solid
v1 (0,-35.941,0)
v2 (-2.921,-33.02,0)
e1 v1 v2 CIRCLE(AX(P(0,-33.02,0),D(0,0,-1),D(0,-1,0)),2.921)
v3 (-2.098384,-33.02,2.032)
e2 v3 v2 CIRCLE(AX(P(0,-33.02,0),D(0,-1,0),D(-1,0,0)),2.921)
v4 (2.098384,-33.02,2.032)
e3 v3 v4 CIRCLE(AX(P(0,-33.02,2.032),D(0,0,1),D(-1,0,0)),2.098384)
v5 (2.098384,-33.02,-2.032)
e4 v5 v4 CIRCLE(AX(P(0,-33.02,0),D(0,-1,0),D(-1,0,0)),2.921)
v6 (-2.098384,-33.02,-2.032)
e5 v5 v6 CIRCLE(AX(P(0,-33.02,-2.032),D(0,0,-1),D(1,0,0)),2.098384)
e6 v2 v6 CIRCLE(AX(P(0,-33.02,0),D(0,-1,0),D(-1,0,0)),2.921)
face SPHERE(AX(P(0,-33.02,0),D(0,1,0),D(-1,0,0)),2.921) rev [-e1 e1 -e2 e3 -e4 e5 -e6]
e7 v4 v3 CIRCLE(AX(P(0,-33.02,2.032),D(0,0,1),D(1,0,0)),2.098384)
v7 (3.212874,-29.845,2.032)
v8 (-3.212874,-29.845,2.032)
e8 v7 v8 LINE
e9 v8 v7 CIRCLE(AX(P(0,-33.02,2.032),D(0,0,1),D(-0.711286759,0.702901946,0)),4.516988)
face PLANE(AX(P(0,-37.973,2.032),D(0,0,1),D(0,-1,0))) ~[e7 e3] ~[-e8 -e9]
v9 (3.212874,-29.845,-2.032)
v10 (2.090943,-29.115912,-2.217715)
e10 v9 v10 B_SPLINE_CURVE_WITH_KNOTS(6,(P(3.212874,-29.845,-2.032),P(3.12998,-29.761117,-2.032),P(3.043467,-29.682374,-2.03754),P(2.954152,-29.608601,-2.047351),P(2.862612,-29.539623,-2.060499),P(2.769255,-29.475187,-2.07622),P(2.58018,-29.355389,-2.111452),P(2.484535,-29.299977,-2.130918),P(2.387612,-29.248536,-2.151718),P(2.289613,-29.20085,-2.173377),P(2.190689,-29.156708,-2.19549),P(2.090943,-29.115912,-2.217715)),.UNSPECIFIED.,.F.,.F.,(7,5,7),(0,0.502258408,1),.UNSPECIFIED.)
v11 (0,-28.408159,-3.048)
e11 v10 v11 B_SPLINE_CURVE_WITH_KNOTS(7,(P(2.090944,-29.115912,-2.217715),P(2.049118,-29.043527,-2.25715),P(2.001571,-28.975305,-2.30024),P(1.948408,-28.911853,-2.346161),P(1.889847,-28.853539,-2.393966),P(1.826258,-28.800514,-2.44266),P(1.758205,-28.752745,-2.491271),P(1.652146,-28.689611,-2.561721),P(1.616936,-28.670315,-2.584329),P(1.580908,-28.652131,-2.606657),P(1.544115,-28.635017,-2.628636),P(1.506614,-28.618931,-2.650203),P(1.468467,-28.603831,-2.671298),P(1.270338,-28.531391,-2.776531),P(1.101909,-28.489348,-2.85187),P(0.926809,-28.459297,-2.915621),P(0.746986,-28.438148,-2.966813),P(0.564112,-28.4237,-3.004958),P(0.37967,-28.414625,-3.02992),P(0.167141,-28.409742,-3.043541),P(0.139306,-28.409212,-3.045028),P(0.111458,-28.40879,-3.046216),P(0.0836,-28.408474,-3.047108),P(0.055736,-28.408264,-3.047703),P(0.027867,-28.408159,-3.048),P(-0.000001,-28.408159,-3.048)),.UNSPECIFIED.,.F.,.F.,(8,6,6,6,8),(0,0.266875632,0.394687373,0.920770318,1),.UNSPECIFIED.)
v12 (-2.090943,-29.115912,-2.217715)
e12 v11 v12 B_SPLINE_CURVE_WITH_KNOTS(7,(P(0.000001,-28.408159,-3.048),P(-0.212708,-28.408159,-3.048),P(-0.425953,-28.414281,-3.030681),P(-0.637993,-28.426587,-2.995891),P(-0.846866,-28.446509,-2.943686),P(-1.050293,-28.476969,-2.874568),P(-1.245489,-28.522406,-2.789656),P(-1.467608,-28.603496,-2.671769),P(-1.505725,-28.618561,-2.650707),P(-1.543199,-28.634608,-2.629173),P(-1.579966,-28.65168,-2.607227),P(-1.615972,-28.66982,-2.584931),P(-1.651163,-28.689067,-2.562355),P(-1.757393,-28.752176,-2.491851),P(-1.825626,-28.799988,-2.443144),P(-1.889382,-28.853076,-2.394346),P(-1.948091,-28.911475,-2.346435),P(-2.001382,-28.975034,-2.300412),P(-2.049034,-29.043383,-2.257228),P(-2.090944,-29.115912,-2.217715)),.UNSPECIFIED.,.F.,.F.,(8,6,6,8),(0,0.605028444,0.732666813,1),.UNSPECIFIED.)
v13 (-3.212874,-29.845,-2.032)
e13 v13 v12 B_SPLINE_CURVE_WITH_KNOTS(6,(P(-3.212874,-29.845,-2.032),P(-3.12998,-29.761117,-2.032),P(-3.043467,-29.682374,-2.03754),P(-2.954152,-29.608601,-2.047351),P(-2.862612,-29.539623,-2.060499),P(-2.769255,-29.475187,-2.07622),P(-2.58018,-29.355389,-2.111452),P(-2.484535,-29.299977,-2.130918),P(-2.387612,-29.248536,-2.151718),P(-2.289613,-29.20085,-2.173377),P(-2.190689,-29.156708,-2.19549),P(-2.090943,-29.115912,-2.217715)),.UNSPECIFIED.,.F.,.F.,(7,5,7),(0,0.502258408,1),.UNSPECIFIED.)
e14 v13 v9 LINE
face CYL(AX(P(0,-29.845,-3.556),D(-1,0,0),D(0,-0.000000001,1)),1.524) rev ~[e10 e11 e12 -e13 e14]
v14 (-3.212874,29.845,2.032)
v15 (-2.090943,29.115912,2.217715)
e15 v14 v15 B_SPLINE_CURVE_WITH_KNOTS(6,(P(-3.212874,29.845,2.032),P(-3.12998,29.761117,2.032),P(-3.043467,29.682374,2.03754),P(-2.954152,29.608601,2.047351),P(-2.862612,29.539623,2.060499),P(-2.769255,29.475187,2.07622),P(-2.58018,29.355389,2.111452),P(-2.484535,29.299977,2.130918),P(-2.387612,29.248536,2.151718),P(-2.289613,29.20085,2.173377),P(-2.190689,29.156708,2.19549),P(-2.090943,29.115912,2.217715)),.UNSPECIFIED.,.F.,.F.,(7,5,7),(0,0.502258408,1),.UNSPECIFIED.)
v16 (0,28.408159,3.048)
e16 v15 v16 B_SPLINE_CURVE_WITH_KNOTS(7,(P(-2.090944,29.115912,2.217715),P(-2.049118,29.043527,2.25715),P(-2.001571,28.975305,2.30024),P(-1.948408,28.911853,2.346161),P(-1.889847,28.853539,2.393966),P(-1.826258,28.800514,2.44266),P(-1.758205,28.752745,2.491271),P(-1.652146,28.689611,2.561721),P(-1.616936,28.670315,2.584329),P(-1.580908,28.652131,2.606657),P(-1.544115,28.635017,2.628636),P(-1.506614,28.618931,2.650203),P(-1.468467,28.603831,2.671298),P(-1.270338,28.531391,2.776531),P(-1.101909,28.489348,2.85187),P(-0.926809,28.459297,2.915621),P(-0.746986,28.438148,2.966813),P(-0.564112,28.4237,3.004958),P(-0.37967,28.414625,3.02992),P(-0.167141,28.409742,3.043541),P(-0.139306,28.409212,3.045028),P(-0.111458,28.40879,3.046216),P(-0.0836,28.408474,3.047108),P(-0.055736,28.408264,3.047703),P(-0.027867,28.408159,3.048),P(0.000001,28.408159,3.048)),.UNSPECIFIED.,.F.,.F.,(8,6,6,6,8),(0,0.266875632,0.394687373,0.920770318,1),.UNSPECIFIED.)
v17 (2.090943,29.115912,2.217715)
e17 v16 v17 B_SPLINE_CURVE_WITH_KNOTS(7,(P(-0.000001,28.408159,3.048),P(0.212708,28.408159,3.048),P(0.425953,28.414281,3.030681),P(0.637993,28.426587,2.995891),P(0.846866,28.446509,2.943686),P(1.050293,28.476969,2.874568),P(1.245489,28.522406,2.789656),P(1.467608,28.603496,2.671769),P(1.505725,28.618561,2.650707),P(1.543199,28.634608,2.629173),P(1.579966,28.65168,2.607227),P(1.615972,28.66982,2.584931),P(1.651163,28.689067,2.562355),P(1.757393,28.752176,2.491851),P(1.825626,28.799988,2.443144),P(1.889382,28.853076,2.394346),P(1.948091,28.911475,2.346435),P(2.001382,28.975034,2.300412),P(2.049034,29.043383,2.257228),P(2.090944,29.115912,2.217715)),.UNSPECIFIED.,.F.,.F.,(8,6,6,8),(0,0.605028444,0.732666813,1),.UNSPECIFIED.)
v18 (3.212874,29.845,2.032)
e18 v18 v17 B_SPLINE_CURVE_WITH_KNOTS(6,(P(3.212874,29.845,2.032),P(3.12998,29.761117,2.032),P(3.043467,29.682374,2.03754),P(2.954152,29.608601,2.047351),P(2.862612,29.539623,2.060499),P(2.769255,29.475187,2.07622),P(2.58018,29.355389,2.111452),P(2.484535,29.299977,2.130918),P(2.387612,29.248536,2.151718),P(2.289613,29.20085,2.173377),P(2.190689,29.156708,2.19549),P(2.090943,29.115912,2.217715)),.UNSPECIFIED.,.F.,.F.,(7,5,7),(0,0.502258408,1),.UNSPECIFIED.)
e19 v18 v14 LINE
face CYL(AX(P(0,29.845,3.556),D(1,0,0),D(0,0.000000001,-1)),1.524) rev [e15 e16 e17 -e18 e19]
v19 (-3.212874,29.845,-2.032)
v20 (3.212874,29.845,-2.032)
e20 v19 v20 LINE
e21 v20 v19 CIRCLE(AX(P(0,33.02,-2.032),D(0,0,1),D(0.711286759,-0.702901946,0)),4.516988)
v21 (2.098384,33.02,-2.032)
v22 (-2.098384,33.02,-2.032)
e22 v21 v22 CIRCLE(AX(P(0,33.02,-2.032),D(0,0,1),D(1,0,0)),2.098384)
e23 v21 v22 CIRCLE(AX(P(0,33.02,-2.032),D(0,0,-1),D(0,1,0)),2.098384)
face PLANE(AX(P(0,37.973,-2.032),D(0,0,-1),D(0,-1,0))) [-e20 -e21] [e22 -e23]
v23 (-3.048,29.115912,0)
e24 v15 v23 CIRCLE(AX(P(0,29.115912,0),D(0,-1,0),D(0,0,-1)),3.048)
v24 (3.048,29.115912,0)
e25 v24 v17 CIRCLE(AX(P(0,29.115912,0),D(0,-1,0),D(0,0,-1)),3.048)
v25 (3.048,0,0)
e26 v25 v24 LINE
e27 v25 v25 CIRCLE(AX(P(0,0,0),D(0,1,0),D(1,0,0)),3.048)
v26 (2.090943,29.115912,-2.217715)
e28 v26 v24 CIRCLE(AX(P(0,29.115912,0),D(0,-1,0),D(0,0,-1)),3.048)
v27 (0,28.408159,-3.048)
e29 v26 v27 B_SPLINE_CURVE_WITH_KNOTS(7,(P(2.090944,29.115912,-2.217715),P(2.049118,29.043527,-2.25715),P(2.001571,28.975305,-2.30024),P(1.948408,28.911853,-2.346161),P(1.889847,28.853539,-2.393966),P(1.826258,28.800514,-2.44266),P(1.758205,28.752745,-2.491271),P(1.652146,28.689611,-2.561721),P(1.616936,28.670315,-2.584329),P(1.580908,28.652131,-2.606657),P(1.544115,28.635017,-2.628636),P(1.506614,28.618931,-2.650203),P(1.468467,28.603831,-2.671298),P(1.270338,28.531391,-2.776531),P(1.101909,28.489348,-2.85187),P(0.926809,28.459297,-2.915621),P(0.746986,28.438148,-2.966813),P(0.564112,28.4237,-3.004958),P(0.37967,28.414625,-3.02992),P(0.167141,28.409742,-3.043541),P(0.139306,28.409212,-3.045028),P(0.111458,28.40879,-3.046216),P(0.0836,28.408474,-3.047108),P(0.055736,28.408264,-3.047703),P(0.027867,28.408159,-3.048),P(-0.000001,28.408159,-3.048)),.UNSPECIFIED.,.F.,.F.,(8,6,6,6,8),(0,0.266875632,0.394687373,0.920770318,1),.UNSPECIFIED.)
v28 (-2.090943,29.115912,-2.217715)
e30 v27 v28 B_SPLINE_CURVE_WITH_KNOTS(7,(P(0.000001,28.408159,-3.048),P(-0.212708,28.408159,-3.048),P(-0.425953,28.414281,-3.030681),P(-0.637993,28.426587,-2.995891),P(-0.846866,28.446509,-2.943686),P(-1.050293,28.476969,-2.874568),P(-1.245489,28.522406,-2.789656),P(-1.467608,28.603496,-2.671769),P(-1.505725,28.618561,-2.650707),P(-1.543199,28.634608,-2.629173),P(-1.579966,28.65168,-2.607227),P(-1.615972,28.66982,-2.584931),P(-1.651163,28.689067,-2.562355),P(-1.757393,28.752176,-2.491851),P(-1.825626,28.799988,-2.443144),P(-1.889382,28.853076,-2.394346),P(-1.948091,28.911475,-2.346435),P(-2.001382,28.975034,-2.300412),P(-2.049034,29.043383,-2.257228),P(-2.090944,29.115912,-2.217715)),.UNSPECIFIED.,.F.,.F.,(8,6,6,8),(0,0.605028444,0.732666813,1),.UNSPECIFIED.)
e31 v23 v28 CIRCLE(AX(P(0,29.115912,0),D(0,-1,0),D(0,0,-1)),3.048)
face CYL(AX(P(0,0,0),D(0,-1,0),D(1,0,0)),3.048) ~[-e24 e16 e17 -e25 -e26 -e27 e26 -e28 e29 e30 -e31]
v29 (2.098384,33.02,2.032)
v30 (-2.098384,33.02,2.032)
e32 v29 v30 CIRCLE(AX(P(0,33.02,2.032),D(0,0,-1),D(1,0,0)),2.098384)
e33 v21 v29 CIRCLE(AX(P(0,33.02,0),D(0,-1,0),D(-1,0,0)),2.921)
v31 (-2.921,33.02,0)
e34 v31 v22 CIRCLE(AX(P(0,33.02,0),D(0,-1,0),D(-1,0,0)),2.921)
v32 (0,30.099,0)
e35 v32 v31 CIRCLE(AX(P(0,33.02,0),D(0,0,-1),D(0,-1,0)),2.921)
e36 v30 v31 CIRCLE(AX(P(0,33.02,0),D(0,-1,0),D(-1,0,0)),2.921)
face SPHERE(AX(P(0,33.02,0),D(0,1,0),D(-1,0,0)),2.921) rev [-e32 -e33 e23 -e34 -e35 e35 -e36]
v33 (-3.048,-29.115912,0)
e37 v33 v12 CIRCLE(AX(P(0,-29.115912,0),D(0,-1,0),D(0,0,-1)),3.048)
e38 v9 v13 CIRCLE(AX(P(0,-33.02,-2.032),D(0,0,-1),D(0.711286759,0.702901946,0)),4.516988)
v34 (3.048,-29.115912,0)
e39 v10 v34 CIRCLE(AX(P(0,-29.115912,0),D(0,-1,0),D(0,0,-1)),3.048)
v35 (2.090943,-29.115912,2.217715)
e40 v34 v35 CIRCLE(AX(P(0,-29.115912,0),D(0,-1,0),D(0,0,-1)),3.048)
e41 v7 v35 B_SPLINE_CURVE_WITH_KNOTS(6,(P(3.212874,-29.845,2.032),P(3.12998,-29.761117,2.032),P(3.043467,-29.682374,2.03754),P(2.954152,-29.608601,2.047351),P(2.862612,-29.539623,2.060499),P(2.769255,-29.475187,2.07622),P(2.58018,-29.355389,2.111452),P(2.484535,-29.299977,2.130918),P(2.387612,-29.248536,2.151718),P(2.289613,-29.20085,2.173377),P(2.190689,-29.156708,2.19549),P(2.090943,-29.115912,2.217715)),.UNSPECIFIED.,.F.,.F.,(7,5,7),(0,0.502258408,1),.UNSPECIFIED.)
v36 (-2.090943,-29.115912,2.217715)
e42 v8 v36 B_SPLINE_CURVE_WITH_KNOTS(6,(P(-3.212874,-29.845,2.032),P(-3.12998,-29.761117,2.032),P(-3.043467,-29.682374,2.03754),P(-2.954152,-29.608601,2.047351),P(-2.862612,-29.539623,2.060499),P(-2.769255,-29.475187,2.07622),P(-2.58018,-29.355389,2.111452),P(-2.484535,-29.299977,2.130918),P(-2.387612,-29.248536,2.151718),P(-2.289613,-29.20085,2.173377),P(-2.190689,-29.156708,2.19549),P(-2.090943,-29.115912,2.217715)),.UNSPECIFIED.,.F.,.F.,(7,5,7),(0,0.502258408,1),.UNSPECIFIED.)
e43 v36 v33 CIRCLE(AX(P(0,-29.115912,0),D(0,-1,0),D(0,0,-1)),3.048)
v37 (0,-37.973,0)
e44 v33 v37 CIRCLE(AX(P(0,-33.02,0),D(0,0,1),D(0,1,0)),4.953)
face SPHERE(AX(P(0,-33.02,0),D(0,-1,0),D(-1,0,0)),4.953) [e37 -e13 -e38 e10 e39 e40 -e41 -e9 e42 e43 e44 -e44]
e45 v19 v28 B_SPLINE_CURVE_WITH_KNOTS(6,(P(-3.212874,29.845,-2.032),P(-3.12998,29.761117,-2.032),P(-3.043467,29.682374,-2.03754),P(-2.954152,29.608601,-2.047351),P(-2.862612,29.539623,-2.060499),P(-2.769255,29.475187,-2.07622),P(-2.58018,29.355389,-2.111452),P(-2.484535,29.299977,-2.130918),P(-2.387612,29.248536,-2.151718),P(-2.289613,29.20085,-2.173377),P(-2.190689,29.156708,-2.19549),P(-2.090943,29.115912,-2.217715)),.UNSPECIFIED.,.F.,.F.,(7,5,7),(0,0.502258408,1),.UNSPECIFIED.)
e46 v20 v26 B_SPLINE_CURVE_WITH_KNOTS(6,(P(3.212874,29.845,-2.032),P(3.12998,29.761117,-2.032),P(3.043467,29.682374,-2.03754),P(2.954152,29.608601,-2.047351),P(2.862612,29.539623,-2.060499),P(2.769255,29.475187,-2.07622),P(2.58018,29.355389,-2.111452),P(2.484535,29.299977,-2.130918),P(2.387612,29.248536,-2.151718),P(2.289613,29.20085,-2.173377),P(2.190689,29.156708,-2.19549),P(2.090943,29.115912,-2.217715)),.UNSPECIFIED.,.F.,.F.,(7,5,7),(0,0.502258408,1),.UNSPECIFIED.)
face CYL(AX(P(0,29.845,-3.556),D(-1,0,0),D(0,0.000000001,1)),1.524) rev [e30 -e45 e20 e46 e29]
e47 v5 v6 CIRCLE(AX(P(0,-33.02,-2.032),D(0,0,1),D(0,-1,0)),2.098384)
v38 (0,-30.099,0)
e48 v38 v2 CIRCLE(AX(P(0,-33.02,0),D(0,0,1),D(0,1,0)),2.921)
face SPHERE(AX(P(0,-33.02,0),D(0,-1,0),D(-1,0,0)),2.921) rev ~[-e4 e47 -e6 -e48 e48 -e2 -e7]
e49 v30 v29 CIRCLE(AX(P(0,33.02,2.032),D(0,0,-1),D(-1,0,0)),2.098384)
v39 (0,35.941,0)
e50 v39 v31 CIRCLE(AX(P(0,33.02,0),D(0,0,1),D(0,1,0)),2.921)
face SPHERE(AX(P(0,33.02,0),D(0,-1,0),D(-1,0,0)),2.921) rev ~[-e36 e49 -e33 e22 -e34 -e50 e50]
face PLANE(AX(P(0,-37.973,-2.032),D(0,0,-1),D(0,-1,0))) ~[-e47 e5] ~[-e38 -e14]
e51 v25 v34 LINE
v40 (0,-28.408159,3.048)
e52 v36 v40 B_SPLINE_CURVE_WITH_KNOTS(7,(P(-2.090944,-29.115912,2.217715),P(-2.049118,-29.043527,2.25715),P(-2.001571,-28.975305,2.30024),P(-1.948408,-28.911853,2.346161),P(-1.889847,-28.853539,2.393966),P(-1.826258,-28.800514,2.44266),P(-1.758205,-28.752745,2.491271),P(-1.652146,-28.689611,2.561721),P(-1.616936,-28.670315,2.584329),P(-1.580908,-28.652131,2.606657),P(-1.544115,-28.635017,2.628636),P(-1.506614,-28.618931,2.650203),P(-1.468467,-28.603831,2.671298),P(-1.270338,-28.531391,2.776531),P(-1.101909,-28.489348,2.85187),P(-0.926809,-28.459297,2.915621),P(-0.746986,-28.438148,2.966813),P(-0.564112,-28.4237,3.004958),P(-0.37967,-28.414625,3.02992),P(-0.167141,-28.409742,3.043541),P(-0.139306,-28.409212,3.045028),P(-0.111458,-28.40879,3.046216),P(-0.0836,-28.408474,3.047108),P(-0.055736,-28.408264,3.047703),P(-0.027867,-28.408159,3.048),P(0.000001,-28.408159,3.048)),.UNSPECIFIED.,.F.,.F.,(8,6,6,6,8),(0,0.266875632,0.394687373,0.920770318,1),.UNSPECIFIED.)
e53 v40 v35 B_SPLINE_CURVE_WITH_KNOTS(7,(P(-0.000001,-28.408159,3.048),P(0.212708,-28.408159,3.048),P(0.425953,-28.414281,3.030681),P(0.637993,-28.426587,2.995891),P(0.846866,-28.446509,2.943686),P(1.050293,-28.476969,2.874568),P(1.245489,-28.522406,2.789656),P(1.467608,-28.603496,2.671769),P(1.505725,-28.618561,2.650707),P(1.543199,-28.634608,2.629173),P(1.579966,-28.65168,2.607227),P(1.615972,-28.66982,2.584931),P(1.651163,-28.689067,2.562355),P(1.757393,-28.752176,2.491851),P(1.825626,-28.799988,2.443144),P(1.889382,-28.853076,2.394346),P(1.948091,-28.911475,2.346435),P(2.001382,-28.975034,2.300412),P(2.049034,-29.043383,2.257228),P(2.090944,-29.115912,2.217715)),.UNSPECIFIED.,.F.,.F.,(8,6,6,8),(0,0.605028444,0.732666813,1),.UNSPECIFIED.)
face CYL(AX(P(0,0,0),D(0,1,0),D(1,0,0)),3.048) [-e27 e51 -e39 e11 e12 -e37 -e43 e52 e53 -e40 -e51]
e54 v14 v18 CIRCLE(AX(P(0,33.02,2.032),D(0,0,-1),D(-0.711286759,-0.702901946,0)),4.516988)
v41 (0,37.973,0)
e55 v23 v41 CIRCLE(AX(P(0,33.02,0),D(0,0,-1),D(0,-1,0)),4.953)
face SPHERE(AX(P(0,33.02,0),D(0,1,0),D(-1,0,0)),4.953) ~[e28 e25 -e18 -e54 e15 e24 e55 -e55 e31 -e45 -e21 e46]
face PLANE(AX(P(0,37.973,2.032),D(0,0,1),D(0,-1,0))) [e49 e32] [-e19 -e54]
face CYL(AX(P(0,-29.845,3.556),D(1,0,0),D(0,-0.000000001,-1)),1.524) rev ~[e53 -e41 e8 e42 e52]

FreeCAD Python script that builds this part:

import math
import FreeCAD as App
import Part
import Sketcher
from FreeCAD import Vector
Q = App.Units.Quantity

doc = App.newDocument("Part")
body = doc.addObject("PartDesign::Body", "Body")

# Sketch on XZ plane
sketch1 = body.newObject("Sketcher::SketchObject", "Sketch")
sketch1.AttachmentSupport = (doc.getObject("XZ_Plane"), [""])
sketch1.MapMode = "FlatFace"
sketch1.addGeometry(Part.Circle(Vector(0, 0, 0), Vector(0, 0, 1), 3.048), False)
sketch1.addConstraint([
    Sketcher.Constraint("Coincident", 0, 3, -1, 1),
    Sketcher.Constraint("Diameter", 0, Q("0.24 in")),
])
pad1 = body.newObject("PartDesign::Pad", "Pad")
pad1.Profile = sketch1
pad1.Length = Q("1.3 in")
pad1.Reversed = True

# Sketch on XY plane
sketch2 = body.newObject("Sketcher::SketchObject", "Sketch001")
sketch2.AttachmentSupport = (doc.getObject("XY_Plane"), [""])
sketch2.MapMode = "FlatFace"
sketch2.addGeometry([
    Part.LineSegment(Vector(0, 35.941, 0), Vector(0, 37.973, 0)),
    Part.ArcOfCircle(Part.Circle(Vector(0, 33.02, 0), Vector(0, 0, 1), 4.953), math.radians(90), math.radians(270)),
    Part.LineSegment(Vector(0, 28.067, 0), Vector(0, 30.099, 0)),
    Part.ArcOfCircle(Part.Circle(Vector(0, 33.02, 0), Vector(0, 0, 1), 2.921), math.radians(90), math.radians(270)),
], False)
sketch2.addConstraint([
    Sketcher.Constraint("Coincident", 0, 2, 1, 1),
    Sketcher.Constraint("Coincident", 1, 2, 2, 1),
    Sketcher.Constraint("Coincident", 2, 2, 3, 2),
    Sketcher.Constraint("Coincident", 3, 1, 0, 1),
    Sketcher.Constraint("Vertical", 0),
    Sketcher.Constraint("Vertical", 2),
    Sketcher.Constraint("Coincident", 3, 3, 1, 3),
    Sketcher.Constraint("PointOnObject", 1, 3, -2),
    Sketcher.Constraint("PointOnObject", 0, 2, -2),
    Sketcher.Constraint("PointOnObject", 1, 2, -2),
    Sketcher.Constraint("Radius", 1, Q("0.195 in")),
    Sketcher.Constraint("Radius", 3, Q("0.115 in")),
    Sketcher.Constraint("DistanceY", -1, 1, 1, 3, Q("1.3 in")),
])
revolution = body.newObject("PartDesign::Revolution", "Revolution")
revolution.Profile = sketch2
revolution.ReferenceAxis = (sketch2, ["V_Axis"])
revolution.Angle = 360

# Sketch on YZ plane
sketch3 = body.newObject("Sketcher::SketchObject", "Sketch002")
sketch3.AttachmentSupport = (doc.getObject("YZ_Plane"), [""])
sketch3.MapMode = "FlatFace"
sketch3.addGeometry([
    Part.LineSegment(Vector(29.845, 2.032, 0), Vector(37.973, 2.032, 0)),  # 0
    Part.LineSegment(Vector(37.973, 2.032, 0), Vector(37.973, 6.35, 0)),  # 1
    Part.LineSegment(Vector(37.973, 6.35, 0), Vector(28.321, 6.35, 0)),  # 2
    Part.LineSegment(Vector(28.321, 6.35, 0), Vector(28.321, 3.556, 0)),  # 3
    Part.ArcOfCircle(Part.Circle(Vector(29.845, 3.556, 0), Vector(0, 0, 1), 1.524), math.radians(180), math.radians(270)),  # 4
    Part.LineSegment(Vector(37.973, -6.35, 0), Vector(37.973, -2.032, 0)),  # 5
    Part.LineSegment(Vector(37.973, -2.032, 0), Vector(29.845, -2.032, 0)),  # 6
    Part.ArcOfCircle(Part.Circle(Vector(29.845, -3.556, 0), Vector(0, 0, 1), 1.524), math.radians(90), math.radians(180)),  # 7
    Part.LineSegment(Vector(28.321, -3.556, 0), Vector(28.321, -6.35, 0)),  # 8
    Part.LineSegment(Vector(28.321, -6.35, 0), Vector(37.973, -6.35, 0)),  # 9
], False)
sketch3.addConstraint([
    Sketcher.Constraint("Coincident", 0, 2, 1, 1),
    Sketcher.Constraint("Coincident", 1, 2, 2, 1),
    Sketcher.Constraint("Coincident", 2, 2, 3, 1),
    Sketcher.Constraint("Tangent", 3, 2, 4, 1),
    Sketcher.Constraint("Tangent", 4, 2, 0, 1),
    Sketcher.Constraint("Coincident", 5, 2, 6, 1),
    Sketcher.Constraint("Tangent", 6, 2, 7, 1),
    Sketcher.Constraint("Tangent", 7, 2, 8, 1),
    Sketcher.Constraint("Coincident", 8, 2, 9, 1),
    Sketcher.Constraint("Coincident", 9, 2, 5, 1),
    Sketcher.Constraint("Horizontal", 0),
    Sketcher.Constraint("Vertical", 1),
    Sketcher.Constraint("Horizontal", 2),
    Sketcher.Constraint("Vertical", 3),
    Sketcher.Constraint("Vertical", 5),
    Sketcher.Constraint("Horizontal", 6),
    Sketcher.Constraint("Vertical", 8),
    Sketcher.Constraint("Horizontal", 9),
    Sketcher.Constraint("Equal", 4, 7),
    Sketcher.Constraint("Symmetric", 4, 3, 7, 3, -1),
    Sketcher.Constraint("Symmetric", 1, 2, 9, 2, -1),
    Sketcher.Constraint("Radius", 4, Q("0.06 in")),
    Sketcher.Constraint("DistanceX", 0, 1, 0, 2, Q("0.32 in")),
    Sketcher.Constraint("DistanceY", 1, 1, 1, 2, Q("0.17 in")),
    Sketcher.Constraint("DistanceY", -1, 1, 4, 3, Q("0.14 in")),
    Sketcher.Constraint("DistanceX", -1, 1, 4, 3, Q("1.175 in")),
])
pocket1 = body.newObject("PartDesign::Pocket", "Pocket")
pocket1.Profile = sketch3
pocket1.Type = "ThroughAll"
pocket1.Midplane = True

# Sketch on XY plane
sketch4 = body.newObject("Sketcher::SketchObject", "Sketch003")
sketch4.AttachmentSupport = (doc.getObject("XY_Plane"), [""])
sketch4.MapMode = "FlatFace"
sketch4.addGeometry([
    Part.LineSegment(Vector(0, 30.099, 0), Vector(0, 35.941, 0)),
    Part.ArcOfCircle(Part.Circle(Vector(0, 33.02, 0), Vector(0, 0, 1), 2.921), math.radians(90), math.radians(270)),
], False)
sketch4.addConstraint([
    Sketcher.Constraint("Coincident", 0, 1, 1, 2),
    Sketcher.Constraint("Coincident", 1, 1, 0, 2),
    Sketcher.Constraint("Vertical", 0),
    Sketcher.Constraint("PointOnObject", 1, 3, -2),
    Sketcher.Constraint("PointOnObject", 0, 1, -2),
    Sketcher.Constraint("Radius", 1, Q("0.115 in")),
    Sketcher.Constraint("DistanceY", -1, 1, 1, 3, Q("1.3 in")),
])
groove = body.newObject("PartDesign::Groove", "Groove")
groove.Profile = sketch4
groove.ReferenceAxis = (sketch4, ["V_Axis"])
groove.Angle = 360
body2 = doc.addObject("PartDesign::Body", "Body001")
doc.recompute()

body2.BaseFeature = body
doc.recompute()

mirroring = doc.addObject("Part::Mirroring", "Mirroring")
mirroring.Source = body
mirroring.Base = Vector(0, 0, 0)
mirroring.Normal = Vector(0, 1, 0)
body3 = doc.addObject("PartDesign::Body", "Body002")
body3.BaseFeature = mirroring
boolean = body2.newObject("PartDesign::Boolean", "Boolean")
boolean.Type = "Fuse"
boolean.addObjects([body3])
doc.recompute()
mirroring.Visibility = False

doc.recompute()
